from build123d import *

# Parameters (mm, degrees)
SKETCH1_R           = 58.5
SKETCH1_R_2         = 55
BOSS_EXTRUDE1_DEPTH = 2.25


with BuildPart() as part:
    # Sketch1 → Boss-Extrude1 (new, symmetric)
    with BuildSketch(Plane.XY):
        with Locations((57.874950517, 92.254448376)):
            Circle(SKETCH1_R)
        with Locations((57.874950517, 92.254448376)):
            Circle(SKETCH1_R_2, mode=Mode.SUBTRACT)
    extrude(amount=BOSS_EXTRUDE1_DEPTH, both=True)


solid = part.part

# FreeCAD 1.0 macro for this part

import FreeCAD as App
import Part
import Sketcher
from FreeCAD import Vector
Q = App.Units.Quantity

doc = App.newDocument("Part")
params = doc.addObject("Spreadsheet::Sheet", "Params")
for row, (alias, value) in enumerate([
    ("sketch1_diameter", "117 mm"),
    ("sketch1_diameter2", "110 mm"),
    ("pad1_length", "4.5 mm"),
], start=1):
    params.set(f"A{row}", alias)
    params.set(f"B{row}", "=" + value)
    params.setAlias(f"B{row}", alias)

body = doc.addObject("PartDesign::Body", "Body")

sketch1 = body.newObject("Sketcher::SketchObject", "Sketch")
sketch1.AttachmentSupport = (doc.getObject("XY_Plane"), [""])
sketch1.MapMode = "FlatFace"
sketch1.addGeometry(Part.Circle(Vector(58, 92, 0), Vector(0, 0, 1), 58), False)
sketch1.addGeometry(Part.Circle(Vector(58, 92, 0), Vector(0, 0, 1), 55), False)
sketch1.addConstraint(Sketcher.Constraint("Coincident", 1, 3, 0, 3))
sketch1.addConstraint(Sketcher.Constraint("Diameter", 0, Q("117 mm")))
sketch1.addConstraint(Sketcher.Constraint("Diameter", 1, Q("110 mm")))
sketch1.addConstraint(Sketcher.Constraint("DistanceX", -1, 1, 0, 3, Q("57.874951 mm")))
sketch1.addConstraint(Sketcher.Constraint("DistanceY", -1, 1, 0, 3, Q("92.254448 mm")))
sketch1.setExpression("Constraints[1]", "Params.sketch1_diameter")
sketch1.setExpression("Constraints[2]", "Params.sketch1_diameter2")
pad1 = body.newObject("PartDesign::Pad", "Pad")
pad1.Profile = sketch1
pad1.setExpression("Length", "Params.pad1_length")
pad1.Midplane = True

doc.recompute()
